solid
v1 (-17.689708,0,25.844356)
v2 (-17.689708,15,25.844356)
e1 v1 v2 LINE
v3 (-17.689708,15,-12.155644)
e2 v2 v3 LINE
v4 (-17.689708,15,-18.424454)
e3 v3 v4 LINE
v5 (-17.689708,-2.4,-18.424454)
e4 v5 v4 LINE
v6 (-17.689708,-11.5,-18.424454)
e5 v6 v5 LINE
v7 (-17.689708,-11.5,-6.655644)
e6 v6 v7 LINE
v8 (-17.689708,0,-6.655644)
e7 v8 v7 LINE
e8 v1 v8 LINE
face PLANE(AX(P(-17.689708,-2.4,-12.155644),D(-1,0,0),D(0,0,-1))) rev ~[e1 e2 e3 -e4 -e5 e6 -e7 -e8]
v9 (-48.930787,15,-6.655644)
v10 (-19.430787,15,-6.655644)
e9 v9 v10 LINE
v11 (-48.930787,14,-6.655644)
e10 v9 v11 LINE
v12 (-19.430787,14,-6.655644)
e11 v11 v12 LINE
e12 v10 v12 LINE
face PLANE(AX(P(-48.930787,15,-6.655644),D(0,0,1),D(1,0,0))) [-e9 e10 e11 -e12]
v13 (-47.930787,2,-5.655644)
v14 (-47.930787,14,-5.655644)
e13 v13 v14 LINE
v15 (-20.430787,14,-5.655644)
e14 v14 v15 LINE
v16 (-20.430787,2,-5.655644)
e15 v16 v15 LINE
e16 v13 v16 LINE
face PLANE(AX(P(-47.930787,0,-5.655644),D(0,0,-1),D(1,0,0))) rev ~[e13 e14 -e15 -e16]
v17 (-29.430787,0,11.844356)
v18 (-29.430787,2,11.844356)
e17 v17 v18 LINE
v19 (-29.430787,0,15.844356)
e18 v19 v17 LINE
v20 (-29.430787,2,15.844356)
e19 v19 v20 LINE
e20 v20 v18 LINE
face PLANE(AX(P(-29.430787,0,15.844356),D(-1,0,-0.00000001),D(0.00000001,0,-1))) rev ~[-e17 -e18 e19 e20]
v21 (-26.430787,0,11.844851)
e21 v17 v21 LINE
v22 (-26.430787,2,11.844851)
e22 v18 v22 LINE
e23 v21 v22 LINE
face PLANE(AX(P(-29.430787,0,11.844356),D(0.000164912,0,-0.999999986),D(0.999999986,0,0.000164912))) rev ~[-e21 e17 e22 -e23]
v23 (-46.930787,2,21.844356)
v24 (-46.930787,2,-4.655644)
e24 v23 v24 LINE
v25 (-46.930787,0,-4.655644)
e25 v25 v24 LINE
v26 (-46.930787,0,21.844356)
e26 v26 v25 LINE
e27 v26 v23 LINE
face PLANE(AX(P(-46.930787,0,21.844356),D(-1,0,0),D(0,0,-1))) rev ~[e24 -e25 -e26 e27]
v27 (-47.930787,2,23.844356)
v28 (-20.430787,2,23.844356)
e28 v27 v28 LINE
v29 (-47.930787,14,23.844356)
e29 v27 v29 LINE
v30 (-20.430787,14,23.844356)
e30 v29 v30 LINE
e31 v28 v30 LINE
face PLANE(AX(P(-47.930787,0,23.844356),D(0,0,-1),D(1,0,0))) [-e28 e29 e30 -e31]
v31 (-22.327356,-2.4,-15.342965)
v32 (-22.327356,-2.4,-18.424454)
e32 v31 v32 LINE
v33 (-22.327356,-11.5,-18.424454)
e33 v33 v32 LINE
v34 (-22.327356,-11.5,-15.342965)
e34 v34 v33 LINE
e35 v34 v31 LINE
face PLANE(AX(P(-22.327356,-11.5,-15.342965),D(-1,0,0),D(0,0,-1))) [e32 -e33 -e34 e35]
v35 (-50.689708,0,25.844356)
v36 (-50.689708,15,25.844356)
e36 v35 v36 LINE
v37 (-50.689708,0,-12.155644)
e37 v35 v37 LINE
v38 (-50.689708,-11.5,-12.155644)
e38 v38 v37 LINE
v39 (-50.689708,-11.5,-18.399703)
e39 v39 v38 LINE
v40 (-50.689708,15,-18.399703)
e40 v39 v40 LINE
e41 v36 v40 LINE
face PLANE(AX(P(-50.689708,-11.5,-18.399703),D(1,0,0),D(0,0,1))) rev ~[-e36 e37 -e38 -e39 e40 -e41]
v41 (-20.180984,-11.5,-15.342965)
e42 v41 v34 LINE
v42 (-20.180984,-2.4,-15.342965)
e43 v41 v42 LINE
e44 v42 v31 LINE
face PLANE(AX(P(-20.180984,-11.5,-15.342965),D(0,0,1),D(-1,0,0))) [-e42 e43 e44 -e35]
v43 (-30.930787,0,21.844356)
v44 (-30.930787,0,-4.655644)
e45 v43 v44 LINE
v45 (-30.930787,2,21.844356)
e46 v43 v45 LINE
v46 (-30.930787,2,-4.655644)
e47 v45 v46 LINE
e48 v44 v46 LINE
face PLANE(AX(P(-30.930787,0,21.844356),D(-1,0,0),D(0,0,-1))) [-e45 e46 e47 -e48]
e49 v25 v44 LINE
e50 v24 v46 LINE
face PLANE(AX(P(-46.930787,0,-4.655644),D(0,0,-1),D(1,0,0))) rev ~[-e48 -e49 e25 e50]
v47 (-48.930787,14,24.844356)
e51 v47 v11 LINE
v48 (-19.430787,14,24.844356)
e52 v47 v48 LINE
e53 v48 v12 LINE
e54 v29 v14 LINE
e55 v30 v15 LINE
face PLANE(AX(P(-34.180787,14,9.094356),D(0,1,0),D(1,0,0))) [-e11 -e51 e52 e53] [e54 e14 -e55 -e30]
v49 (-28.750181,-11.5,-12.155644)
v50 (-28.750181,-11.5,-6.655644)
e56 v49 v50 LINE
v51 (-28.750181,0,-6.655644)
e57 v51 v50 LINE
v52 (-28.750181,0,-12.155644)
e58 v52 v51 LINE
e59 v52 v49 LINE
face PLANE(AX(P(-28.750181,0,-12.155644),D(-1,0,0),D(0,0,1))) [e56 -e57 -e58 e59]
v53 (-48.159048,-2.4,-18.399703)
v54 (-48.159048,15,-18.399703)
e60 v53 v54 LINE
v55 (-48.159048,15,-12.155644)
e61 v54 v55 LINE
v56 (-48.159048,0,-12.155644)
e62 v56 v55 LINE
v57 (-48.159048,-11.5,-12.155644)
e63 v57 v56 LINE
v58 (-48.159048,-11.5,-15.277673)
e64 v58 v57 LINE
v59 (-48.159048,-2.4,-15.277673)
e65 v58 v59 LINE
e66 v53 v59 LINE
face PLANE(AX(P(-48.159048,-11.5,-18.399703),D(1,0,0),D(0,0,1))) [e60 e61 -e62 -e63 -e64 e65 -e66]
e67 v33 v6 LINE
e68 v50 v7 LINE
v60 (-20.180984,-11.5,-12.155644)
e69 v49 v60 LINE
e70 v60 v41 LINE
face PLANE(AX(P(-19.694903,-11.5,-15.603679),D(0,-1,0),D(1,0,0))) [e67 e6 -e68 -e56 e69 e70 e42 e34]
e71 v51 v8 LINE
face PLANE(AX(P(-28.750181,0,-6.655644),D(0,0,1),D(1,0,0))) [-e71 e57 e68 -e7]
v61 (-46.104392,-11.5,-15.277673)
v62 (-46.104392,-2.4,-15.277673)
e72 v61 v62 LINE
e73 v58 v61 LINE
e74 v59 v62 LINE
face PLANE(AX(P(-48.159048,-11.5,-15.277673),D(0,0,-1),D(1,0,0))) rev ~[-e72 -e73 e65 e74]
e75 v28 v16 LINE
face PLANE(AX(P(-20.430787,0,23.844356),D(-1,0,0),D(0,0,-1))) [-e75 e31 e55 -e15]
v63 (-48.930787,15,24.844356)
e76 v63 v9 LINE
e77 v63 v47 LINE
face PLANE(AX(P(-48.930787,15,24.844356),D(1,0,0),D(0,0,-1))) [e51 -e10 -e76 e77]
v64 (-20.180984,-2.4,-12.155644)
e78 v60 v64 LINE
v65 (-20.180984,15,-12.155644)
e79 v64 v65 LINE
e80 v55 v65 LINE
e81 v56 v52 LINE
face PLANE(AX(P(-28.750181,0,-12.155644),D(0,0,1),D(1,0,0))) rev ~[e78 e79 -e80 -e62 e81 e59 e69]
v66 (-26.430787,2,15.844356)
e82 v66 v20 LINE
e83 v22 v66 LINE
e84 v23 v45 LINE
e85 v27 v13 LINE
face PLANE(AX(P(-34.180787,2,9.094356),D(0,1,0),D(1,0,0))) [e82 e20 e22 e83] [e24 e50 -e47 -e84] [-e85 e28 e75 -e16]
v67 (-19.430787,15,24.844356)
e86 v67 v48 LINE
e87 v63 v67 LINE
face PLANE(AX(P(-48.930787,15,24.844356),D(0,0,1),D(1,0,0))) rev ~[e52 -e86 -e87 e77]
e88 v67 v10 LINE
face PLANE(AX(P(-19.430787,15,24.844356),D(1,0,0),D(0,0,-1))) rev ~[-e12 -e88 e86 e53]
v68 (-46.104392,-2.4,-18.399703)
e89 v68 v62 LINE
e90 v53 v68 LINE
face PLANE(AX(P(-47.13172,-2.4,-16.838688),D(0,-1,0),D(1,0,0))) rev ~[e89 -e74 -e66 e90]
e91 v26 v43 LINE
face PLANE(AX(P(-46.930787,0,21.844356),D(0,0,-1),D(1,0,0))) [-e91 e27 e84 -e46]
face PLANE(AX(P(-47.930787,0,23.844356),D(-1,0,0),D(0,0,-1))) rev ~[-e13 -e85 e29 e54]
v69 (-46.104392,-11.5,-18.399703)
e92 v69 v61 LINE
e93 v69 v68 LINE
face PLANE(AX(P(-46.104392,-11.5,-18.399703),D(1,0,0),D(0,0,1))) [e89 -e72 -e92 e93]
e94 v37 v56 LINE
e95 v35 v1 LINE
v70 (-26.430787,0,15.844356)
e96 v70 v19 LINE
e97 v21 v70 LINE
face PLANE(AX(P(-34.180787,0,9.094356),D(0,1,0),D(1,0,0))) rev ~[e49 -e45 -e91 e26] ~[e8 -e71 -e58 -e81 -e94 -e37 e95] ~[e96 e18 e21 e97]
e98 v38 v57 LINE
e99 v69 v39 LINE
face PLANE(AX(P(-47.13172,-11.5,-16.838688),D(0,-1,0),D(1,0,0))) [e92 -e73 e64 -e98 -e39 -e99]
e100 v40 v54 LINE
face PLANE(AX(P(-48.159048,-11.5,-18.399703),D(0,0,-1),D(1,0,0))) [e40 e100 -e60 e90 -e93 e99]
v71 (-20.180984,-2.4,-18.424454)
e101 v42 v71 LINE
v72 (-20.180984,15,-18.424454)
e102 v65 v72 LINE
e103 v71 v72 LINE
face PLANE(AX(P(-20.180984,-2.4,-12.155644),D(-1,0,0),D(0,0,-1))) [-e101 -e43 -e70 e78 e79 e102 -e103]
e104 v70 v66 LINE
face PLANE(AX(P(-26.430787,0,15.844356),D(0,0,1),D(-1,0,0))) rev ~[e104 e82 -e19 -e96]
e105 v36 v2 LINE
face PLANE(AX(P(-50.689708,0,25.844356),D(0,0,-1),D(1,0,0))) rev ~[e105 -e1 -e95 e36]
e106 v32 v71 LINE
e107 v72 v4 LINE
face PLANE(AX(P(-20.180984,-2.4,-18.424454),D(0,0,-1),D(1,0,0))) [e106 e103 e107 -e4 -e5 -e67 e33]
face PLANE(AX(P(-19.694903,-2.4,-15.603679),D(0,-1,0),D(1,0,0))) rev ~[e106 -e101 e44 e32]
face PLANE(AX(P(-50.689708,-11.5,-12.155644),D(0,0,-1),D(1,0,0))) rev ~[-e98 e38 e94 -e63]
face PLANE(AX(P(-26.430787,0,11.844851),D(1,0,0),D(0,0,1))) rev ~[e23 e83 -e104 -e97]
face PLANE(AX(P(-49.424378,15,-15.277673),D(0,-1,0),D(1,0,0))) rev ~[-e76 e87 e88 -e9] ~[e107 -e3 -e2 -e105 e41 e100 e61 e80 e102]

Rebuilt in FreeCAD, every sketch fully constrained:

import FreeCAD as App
import Part
import Sketcher
Q = App.Units.Quantity


def add_polygon(sketch, points):
    """Adds a closed chain of lines whose ends are joined by coincident constraints."""
    first, n = sketch.GeometryCount, len(points)
    for a, b in zip(points, points[1:] + points[:1]):
        sketch.addGeometry(Part.LineSegment(App.Vector(*a, 0), App.Vector(*b, 0)), False)
    for i in range(n):
        sketch.addConstraint(Sketcher.Constraint("Coincident", first + i, 2, first + (i + 1) % n, 1))

doc = App.newDocument("Part")
body = doc.addObject("PartDesign::Body", "Body")

# Sketch on XZ plane
sketch1 = body.newObject("Sketcher::SketchObject", "Sketch")
sketch1.AttachmentSupport = (doc.getObject("XZ_Plane"), [""])
sketch1.MapMode = "FlatFace"
add_polygon(sketch1, [(-50.689708, -12.155644), (-50.689708, 25.844356), (-17.689708, 25.844356), (-17.689708, -12.155644)])  # lines 0-3
add_polygon(sketch1, [(-20.430787, 23.844356), (-47.930787, 23.844356), (-47.930787, -5.655644), (-20.430787, -5.655644)])  # lines 4-7
sketch1.addConstraint([
    Sketcher.Constraint("Vertical", 0),
    Sketcher.Constraint("Horizontal", 1),
    Sketcher.Constraint("Vertical", 2),
    Sketcher.Constraint("Horizontal", 3),
    Sketcher.Constraint("Horizontal", 4),
    Sketcher.Constraint("Vertical", 5),
    Sketcher.Constraint("Horizontal", 6),
    Sketcher.Constraint("Vertical", 7),
    Sketcher.Constraint("DistanceX", 1, 1, 1, 2, Q("33 mm")),
    Sketcher.Constraint("DistanceY", 0, 1, 0, 2, Q("38 mm")),
    Sketcher.Constraint("DistanceX", 4, 2, 4, 1, Q("27.5 mm")),
    Sketcher.Constraint("DistanceY", 5, 2, 5, 1, Q("29.5 mm")),
    Sketcher.Constraint("DistanceY", 4, 2, 0, 2, Q("2 mm")),
    Sketcher.Constraint("DistanceX", 0, 2, -1, 1, Q("50.689708 mm")),
    Sketcher.Constraint("DistanceX", 0, 2, 4, 2, Q("2.758921 mm")),
    Sketcher.Constraint("DistanceY", -1, 1, 0, 2, Q("25.844356 mm")),
])
pad1 = body.newObject("PartDesign::Pad", "Pad")
pad1.Profile = sketch1
pad1.Length = 15
pad1.Reversed = True

# Sketch on XZ plane
sketch2 = body.newObject("Sketcher::SketchObject", "Sketch001")
sketch2.AttachmentSupport = (doc.getObject("XZ_Plane"), [""])
sketch2.MapMode = "FlatFace"
add_polygon(sketch2, [(-47.930787, -5.655644), (-47.930787, 23.844356), (-20.430787, 23.844356), (-20.430787, -5.655644)])  # lines 0-3
add_polygon(sketch2, [(-29.430787, 11.844356), (-26.430787, 11.844851), (-26.430787, 15.844356), (-29.430787, 15.844356)])  # lines 4-7
add_polygon(sketch2, [(-30.930787, 21.844356), (-46.930787, 21.844356), (-46.930787, -4.655644), (-30.930787, -4.655644)])  # lines 8-11
sketch2.addConstraint([
    Sketcher.Constraint("Vertical", 0),
    Sketcher.Constraint("Horizontal", 1),
    Sketcher.Constraint("Vertical", 2),
    Sketcher.Constraint("Horizontal", 3),
    Sketcher.Constraint("Vertical", 5),
    Sketcher.Constraint("Horizontal", 6),
    Sketcher.Constraint("Vertical", 7),
    Sketcher.Constraint("Horizontal", 8),
    Sketcher.Constraint("Vertical", 9),
    Sketcher.Constraint("Horizontal", 10),
    Sketcher.Constraint("Vertical", 11),
    Sketcher.Constraint("DistanceX", 6, 2, 6, 1, Q("3 mm")),
    Sketcher.Constraint("DistanceX", 8, 2, 8, 1, Q("16 mm")),
    Sketcher.Constraint("DistanceY", 7, 2, 7, 1, Q("4 mm")),
    Sketcher.Constraint("DistanceX", 1, 1, 1, 2, Q("27.5 mm")),
    Sketcher.Constraint("DistanceY", 0, 1, 0, 2, Q("29.5 mm")),
    Sketcher.Constraint("DistanceY", 9, 2, 9, 1, Q("26.5 mm")),
    Sketcher.Constraint("DistanceX", 4, 2, 1, 2, Q("6 mm")),
    Sketcher.Constraint("DistanceY", 5, 2, 1, 2, Q("8 mm")),
    Sketcher.Constraint("DistanceX", 0, 2, 8, 2, Q("1 mm")),
    Sketcher.Constraint("DistanceY", 8, 2, 0, 2, Q("2 mm")),
    Sketcher.Constraint("DistanceY", 5, 1, 5, 2, Q("3.999505 mm")),
    Sketcher.Constraint("DistanceY", -1, 1, 4, 2, Q("11.844851 mm")),
    Sketcher.Constraint("DistanceX", 0, 2, -1, 1, Q("47.930787 mm")),
])
pad2 = body.newObject("PartDesign::Pad", "Pad001")
pad2.Profile = sketch2
pad2.Length = 2
pad2.Reversed = True

# Sketch on XZ plane
sketch3 = body.newObject("Sketcher::SketchObject", "Sketch002")
sketch3.AttachmentSupport = (doc.getObject("XZ_Plane"), [""])
sketch3.MapMode = "FlatFace"
sketch3.AttachmentOffset = App.Placement(App.Vector(0, 0, -15), App.Rotation())
add_polygon(sketch3, [(-48.930787, -6.655644), (-48.930787, 24.844356), (-19.430787, 24.844356), (-19.430787, -6.655644)])  # lines 0-3
sketch3.addConstraint([
    Sketcher.Constraint("Vertical", 0),
    Sketcher.Constraint("Horizontal", 1),
    Sketcher.Constraint("Vertical", 2),
    Sketcher.Constraint("Horizontal", 3),
    Sketcher.Constraint("DistanceX", 1, 1, 1, 2, Q("29.5 mm")),
    Sketcher.Constraint("DistanceY", 0, 1, 0, 2, Q("31.5 mm")),
    Sketcher.Constraint("DistanceX", 0, 2, -1, 1, Q("48.930787 mm")),
    Sketcher.Constraint("DistanceY", -1, 1, 0, 2, Q("24.844356 mm")),
])
pocket1 = body.newObject("PartDesign::Pocket", "Pocket")
pocket1.Profile = sketch3
pocket1.Length = 1
pocket1.Reversed = True

# Sketch on XZ plane
sketch4 = body.newObject("Sketcher::SketchObject", "Sketch003")
sketch4.AttachmentSupport = (doc.getObject("XZ_Plane"), [""])
sketch4.MapMode = "FlatFace"
add_polygon(sketch4, [(-28.750181, -6.655644), (-28.750181, -12.155644), (-17.689708, -12.155644), (-17.689708, -6.655644)])  # lines 0-3
sketch4.addConstraint([
    Sketcher.Constraint("Vertical", 0),
    Sketcher.Constraint("Horizontal", 1),
    Sketcher.Constraint("Vertical", 2),
    Sketcher.Constraint("Horizontal", 3),
    Sketcher.Constraint("DistanceY", 0, 2, 0, 1, Q("5.5 mm")),
    Sketcher.Constraint("DistanceX", 1, 1, 1, 2, Q("11.060473 mm")),
    Sketcher.Constraint("DistanceX", 0, 2, -1, 1, Q("28.750181 mm")),
    Sketcher.Constraint("DistanceY", 0, 2, -1, 1, Q("12.155644 mm")),
])
pad3 = body.newObject("PartDesign::Pad", "Pad002")
pad3.Profile = sketch4
pad3.Length = 11.5

# Sketch on XZ plane
sketch5 = body.newObject("Sketcher::SketchObject", "Sketch004")
sketch5.AttachmentSupport = (doc.getObject("XZ_Plane"), [""])
sketch5.MapMode = "FlatFace"
sketch5.AttachmentOffset = App.Placement(App.Vector(0, 0, 11.5), App.Rotation())
add_polygon(sketch5, [(-17.689708, -12.155644), (-20.180984, -12.155644), (-20.180984, -15.342965), (-22.327356, -15.342965), (-22.327356, -18.424454), (-17.689708, -18.424454)])  # lines 0-5
sketch5.addConstraint([
    Sketcher.Constraint("Horizontal", 0),
    Sketcher.Constraint("Vertical", 1),
    Sketcher.Constraint("Horizontal", 2),
    Sketcher.Constraint("Vertical", 3),
    Sketcher.Constraint("Horizontal", 4),
    Sketcher.Constraint("Vertical", 5),
    Sketcher.Constraint("DistanceX", 2, 2, 2, 1, Q("2.146372 mm")),
    Sketcher.Constraint("DistanceY", 1, 2, 1, 1, Q("3.187322 mm")),
    Sketcher.Constraint("DistanceY", 3, 2, 3, 1, Q("3.081489 mm")),
    Sketcher.Constraint("DistanceX", 0, 2, 0, 1, Q("2.491276 mm")),
    Sketcher.Constraint("DistanceX", 4, 2, -1, 1, Q("17.689708 mm")),
    Sketcher.Constraint("DistanceY", 0, 2, -1, 1, Q("12.155644 mm")),
])
pad4 = body.newObject("PartDesign::Pad", "Pad003")
pad4.Profile = sketch5
pad4.Length = 9.1
pad4.Reversed = True

# Sketch on XZ plane
sketch6 = body.newObject("Sketcher::SketchObject", "Sketch005")
sketch6.AttachmentSupport = (doc.getObject("XZ_Plane"), [""])
sketch6.MapMode = "FlatFace"
sketch6.AttachmentOffset = App.Placement(App.Vector(0, 0, 2.4), App.Rotation())
add_polygon(sketch6, [(-20.180984, -18.424454), (-20.180984, -12.155644), (-17.689708, -12.155644), (-17.689708, -18.424454)])  # lines 0-3
sketch6.addConstraint([
    Sketcher.Constraint("Vertical", 0),
    Sketcher.Constraint("Horizontal", 1),
    Sketcher.Constraint("Vertical", 2),
    Sketcher.Constraint("Horizontal", 3),
    Sketcher.Constraint("DistanceY", 0, 1, 0, 2, Q("6.26881 mm")),
    Sketcher.Constraint("DistanceX", 1, 1, 1, 2, Q("2.491276 mm")),
    Sketcher.Constraint("DistanceX", 1, 2, -1, 1, Q("17.689708 mm")),
    Sketcher.Constraint("DistanceY", 0, 2, -1, 1, Q("12.155644 mm")),
])
pad5 = body.newObject("PartDesign::Pad", "Pad004")
pad5.Profile = sketch6
pad5.Length = 17.4
pad5.Reversed = True

# Sketch on XZ plane
sketch7 = body.newObject("Sketcher::SketchObject", "Sketch006")
sketch7.AttachmentSupport = (doc.getObject("XZ_Plane"), [""])
sketch7.MapMode = "FlatFace"
sketch7.AttachmentOffset = App.Placement(App.Vector(0, 0, 11.5), App.Rotation())
add_polygon(sketch7, [(-50.689708, -12.155644), (-50.689708, -18.399703), (-48.159048, -18.399703), (-48.159048, -12.155644)])  # lines 0-3
sketch7.addConstraint([
    Sketcher.Constraint("Vertical", 0),
    Sketcher.Constraint("Horizontal", 1),
    Sketcher.Constraint("Vertical", 2),
    Sketcher.Constraint("Horizontal", 3),
    Sketcher.Constraint("DistanceX", 1, 1, 1, 2, Q("2.53066 mm")),
    Sketcher.Constraint("DistanceY", 0, 2, 0, 1, Q("6.244059 mm")),
    Sketcher.Constraint("DistanceX", 0, 2, -1, 1, Q("50.689708 mm")),
    Sketcher.Constraint("DistanceY", 0, 2, -1, 1, Q("18.399703 mm")),
])
pad6 = body.newObject("PartDesign::Pad", "Pad005")
pad6.Profile = sketch7
pad6.Length = 26.5
pad6.Reversed = True

# Sketch on XZ plane
sketch8 = body.newObject("Sketcher::SketchObject", "Sketch007")
sketch8.AttachmentSupport = (doc.getObject("XZ_Plane"), [""])
sketch8.MapMode = "FlatFace"
sketch8.AttachmentOffset = App.Placement(App.Vector(0, 0, 11.5), App.Rotation())
add_polygon(sketch8, [(-48.159048, -15.277673), (-48.159048, -18.399703), (-46.104392, -18.399703), (-46.104392, -15.277673)])  # lines 0-3
sketch8.addConstraint([
    Sketcher.Constraint("Vertical", 0),
    Sketcher.Constraint("Horizontal", 1),
    Sketcher.Constraint("Vertical", 2),
    Sketcher.Constraint("Horizontal", 3),
    Sketcher.Constraint("DistanceY", 0, 2, 0, 1, Q("3.12203 mm")),
    Sketcher.Constraint("DistanceX", 1, 1, 1, 2, Q("2.054657 mm")),
    Sketcher.Constraint("DistanceX", 0, 2, -1, 1, Q("48.159048 mm")),
    Sketcher.Constraint("DistanceY", 0, 2, -1, 1, Q("18.399703 mm")),
])
pad7 = body.newObject("PartDesign::Pad", "Pad006")
pad7.Profile = sketch8
pad7.Length = 9.1
pad7.Reversed = True

doc.recompute()
